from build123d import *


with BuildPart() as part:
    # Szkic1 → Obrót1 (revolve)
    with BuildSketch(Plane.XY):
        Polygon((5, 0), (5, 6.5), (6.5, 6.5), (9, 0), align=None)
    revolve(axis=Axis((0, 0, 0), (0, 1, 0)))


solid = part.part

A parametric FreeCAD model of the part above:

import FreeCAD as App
import Part
import Sketcher

V = App.Vector
Q = App.Units.Quantity

doc = App.newDocument("Part")
params = doc.addObject("Spreadsheet::Sheet", "Params")
for row, (alias, value) in enumerate([
    ("sketch1_width", "4 mm"),
    ("sketch1_width2", "1.5 mm"),
    ("sketch1_height", "6.5 mm"),
    ("revolution_angle", "360 deg"),
], start=1):
    params.set(f"A{row}", alias)
    params.set(f"B{row}", "=" + value)
    params.setAlias(f"B{row}", alias)

body = doc.addObject("PartDesign::Body", "Body")

# Sketch on XY plane
sketch1 = body.newObject("Sketcher::SketchObject", "Sketch")
sketch1.AttachmentSupport = (doc.getObject("XY_Plane"), [""])
sketch1.MapMode = "FlatFace"
sketch1.addGeometry([
    Part.LineSegment(V(5, 6.5, 0), V(5, 0, 0)),
    Part.LineSegment(V(5, 0, 0), V(9, 0, 0)),
    Part.LineSegment(V(9, 0, 0), V(6.5, 6.5, 0)),
    Part.LineSegment(V(6.5, 6.5, 0), V(5, 6.5, 0)),
], False)
sketch1.addConstraint([
    Sketcher.Constraint("Coincident", 0, 2, 1, 1),
    Sketcher.Constraint("Coincident", 1, 2, 2, 1),
    Sketcher.Constraint("Coincident", 2, 2, 3, 1),
    Sketcher.Constraint("Coincident", 3, 2, 0, 1),
    Sketcher.Constraint("Vertical", 0),
    Sketcher.Constraint("Horizontal", 1),
    Sketcher.Constraint("Horizontal", 3),
    Sketcher.Constraint("PointOnObject", 0, 2, -1),
    Sketcher.Constraint("DistanceX", 1, 1, 1, 2, Q("4 mm")),
    Sketcher.Constraint("DistanceX", 3, 2, 3, 1, Q("1.5 mm")),
    Sketcher.Constraint("DistanceY", 0, 2, 0, 1, Q("6.5 mm")),
    Sketcher.Constraint("DistanceX", -1, 1, 0, 2, Q("5 mm")),
])
sketch1.setExpression("Constraints[8]", "Params.sketch1_width")
sketch1.setExpression("Constraints[9]", "Params.sketch1_width2")
sketch1.setExpression("Constraints[10]", "Params.sketch1_height")
revolution = body.newObject("PartDesign::Revolution", "Revolution")
revolution.Profile = sketch1
revolution.ReferenceAxis = (sketch1, ["V_Axis"])
revolution.setExpression("Angle", "Params.revolution_angle")

doc.recompute()
